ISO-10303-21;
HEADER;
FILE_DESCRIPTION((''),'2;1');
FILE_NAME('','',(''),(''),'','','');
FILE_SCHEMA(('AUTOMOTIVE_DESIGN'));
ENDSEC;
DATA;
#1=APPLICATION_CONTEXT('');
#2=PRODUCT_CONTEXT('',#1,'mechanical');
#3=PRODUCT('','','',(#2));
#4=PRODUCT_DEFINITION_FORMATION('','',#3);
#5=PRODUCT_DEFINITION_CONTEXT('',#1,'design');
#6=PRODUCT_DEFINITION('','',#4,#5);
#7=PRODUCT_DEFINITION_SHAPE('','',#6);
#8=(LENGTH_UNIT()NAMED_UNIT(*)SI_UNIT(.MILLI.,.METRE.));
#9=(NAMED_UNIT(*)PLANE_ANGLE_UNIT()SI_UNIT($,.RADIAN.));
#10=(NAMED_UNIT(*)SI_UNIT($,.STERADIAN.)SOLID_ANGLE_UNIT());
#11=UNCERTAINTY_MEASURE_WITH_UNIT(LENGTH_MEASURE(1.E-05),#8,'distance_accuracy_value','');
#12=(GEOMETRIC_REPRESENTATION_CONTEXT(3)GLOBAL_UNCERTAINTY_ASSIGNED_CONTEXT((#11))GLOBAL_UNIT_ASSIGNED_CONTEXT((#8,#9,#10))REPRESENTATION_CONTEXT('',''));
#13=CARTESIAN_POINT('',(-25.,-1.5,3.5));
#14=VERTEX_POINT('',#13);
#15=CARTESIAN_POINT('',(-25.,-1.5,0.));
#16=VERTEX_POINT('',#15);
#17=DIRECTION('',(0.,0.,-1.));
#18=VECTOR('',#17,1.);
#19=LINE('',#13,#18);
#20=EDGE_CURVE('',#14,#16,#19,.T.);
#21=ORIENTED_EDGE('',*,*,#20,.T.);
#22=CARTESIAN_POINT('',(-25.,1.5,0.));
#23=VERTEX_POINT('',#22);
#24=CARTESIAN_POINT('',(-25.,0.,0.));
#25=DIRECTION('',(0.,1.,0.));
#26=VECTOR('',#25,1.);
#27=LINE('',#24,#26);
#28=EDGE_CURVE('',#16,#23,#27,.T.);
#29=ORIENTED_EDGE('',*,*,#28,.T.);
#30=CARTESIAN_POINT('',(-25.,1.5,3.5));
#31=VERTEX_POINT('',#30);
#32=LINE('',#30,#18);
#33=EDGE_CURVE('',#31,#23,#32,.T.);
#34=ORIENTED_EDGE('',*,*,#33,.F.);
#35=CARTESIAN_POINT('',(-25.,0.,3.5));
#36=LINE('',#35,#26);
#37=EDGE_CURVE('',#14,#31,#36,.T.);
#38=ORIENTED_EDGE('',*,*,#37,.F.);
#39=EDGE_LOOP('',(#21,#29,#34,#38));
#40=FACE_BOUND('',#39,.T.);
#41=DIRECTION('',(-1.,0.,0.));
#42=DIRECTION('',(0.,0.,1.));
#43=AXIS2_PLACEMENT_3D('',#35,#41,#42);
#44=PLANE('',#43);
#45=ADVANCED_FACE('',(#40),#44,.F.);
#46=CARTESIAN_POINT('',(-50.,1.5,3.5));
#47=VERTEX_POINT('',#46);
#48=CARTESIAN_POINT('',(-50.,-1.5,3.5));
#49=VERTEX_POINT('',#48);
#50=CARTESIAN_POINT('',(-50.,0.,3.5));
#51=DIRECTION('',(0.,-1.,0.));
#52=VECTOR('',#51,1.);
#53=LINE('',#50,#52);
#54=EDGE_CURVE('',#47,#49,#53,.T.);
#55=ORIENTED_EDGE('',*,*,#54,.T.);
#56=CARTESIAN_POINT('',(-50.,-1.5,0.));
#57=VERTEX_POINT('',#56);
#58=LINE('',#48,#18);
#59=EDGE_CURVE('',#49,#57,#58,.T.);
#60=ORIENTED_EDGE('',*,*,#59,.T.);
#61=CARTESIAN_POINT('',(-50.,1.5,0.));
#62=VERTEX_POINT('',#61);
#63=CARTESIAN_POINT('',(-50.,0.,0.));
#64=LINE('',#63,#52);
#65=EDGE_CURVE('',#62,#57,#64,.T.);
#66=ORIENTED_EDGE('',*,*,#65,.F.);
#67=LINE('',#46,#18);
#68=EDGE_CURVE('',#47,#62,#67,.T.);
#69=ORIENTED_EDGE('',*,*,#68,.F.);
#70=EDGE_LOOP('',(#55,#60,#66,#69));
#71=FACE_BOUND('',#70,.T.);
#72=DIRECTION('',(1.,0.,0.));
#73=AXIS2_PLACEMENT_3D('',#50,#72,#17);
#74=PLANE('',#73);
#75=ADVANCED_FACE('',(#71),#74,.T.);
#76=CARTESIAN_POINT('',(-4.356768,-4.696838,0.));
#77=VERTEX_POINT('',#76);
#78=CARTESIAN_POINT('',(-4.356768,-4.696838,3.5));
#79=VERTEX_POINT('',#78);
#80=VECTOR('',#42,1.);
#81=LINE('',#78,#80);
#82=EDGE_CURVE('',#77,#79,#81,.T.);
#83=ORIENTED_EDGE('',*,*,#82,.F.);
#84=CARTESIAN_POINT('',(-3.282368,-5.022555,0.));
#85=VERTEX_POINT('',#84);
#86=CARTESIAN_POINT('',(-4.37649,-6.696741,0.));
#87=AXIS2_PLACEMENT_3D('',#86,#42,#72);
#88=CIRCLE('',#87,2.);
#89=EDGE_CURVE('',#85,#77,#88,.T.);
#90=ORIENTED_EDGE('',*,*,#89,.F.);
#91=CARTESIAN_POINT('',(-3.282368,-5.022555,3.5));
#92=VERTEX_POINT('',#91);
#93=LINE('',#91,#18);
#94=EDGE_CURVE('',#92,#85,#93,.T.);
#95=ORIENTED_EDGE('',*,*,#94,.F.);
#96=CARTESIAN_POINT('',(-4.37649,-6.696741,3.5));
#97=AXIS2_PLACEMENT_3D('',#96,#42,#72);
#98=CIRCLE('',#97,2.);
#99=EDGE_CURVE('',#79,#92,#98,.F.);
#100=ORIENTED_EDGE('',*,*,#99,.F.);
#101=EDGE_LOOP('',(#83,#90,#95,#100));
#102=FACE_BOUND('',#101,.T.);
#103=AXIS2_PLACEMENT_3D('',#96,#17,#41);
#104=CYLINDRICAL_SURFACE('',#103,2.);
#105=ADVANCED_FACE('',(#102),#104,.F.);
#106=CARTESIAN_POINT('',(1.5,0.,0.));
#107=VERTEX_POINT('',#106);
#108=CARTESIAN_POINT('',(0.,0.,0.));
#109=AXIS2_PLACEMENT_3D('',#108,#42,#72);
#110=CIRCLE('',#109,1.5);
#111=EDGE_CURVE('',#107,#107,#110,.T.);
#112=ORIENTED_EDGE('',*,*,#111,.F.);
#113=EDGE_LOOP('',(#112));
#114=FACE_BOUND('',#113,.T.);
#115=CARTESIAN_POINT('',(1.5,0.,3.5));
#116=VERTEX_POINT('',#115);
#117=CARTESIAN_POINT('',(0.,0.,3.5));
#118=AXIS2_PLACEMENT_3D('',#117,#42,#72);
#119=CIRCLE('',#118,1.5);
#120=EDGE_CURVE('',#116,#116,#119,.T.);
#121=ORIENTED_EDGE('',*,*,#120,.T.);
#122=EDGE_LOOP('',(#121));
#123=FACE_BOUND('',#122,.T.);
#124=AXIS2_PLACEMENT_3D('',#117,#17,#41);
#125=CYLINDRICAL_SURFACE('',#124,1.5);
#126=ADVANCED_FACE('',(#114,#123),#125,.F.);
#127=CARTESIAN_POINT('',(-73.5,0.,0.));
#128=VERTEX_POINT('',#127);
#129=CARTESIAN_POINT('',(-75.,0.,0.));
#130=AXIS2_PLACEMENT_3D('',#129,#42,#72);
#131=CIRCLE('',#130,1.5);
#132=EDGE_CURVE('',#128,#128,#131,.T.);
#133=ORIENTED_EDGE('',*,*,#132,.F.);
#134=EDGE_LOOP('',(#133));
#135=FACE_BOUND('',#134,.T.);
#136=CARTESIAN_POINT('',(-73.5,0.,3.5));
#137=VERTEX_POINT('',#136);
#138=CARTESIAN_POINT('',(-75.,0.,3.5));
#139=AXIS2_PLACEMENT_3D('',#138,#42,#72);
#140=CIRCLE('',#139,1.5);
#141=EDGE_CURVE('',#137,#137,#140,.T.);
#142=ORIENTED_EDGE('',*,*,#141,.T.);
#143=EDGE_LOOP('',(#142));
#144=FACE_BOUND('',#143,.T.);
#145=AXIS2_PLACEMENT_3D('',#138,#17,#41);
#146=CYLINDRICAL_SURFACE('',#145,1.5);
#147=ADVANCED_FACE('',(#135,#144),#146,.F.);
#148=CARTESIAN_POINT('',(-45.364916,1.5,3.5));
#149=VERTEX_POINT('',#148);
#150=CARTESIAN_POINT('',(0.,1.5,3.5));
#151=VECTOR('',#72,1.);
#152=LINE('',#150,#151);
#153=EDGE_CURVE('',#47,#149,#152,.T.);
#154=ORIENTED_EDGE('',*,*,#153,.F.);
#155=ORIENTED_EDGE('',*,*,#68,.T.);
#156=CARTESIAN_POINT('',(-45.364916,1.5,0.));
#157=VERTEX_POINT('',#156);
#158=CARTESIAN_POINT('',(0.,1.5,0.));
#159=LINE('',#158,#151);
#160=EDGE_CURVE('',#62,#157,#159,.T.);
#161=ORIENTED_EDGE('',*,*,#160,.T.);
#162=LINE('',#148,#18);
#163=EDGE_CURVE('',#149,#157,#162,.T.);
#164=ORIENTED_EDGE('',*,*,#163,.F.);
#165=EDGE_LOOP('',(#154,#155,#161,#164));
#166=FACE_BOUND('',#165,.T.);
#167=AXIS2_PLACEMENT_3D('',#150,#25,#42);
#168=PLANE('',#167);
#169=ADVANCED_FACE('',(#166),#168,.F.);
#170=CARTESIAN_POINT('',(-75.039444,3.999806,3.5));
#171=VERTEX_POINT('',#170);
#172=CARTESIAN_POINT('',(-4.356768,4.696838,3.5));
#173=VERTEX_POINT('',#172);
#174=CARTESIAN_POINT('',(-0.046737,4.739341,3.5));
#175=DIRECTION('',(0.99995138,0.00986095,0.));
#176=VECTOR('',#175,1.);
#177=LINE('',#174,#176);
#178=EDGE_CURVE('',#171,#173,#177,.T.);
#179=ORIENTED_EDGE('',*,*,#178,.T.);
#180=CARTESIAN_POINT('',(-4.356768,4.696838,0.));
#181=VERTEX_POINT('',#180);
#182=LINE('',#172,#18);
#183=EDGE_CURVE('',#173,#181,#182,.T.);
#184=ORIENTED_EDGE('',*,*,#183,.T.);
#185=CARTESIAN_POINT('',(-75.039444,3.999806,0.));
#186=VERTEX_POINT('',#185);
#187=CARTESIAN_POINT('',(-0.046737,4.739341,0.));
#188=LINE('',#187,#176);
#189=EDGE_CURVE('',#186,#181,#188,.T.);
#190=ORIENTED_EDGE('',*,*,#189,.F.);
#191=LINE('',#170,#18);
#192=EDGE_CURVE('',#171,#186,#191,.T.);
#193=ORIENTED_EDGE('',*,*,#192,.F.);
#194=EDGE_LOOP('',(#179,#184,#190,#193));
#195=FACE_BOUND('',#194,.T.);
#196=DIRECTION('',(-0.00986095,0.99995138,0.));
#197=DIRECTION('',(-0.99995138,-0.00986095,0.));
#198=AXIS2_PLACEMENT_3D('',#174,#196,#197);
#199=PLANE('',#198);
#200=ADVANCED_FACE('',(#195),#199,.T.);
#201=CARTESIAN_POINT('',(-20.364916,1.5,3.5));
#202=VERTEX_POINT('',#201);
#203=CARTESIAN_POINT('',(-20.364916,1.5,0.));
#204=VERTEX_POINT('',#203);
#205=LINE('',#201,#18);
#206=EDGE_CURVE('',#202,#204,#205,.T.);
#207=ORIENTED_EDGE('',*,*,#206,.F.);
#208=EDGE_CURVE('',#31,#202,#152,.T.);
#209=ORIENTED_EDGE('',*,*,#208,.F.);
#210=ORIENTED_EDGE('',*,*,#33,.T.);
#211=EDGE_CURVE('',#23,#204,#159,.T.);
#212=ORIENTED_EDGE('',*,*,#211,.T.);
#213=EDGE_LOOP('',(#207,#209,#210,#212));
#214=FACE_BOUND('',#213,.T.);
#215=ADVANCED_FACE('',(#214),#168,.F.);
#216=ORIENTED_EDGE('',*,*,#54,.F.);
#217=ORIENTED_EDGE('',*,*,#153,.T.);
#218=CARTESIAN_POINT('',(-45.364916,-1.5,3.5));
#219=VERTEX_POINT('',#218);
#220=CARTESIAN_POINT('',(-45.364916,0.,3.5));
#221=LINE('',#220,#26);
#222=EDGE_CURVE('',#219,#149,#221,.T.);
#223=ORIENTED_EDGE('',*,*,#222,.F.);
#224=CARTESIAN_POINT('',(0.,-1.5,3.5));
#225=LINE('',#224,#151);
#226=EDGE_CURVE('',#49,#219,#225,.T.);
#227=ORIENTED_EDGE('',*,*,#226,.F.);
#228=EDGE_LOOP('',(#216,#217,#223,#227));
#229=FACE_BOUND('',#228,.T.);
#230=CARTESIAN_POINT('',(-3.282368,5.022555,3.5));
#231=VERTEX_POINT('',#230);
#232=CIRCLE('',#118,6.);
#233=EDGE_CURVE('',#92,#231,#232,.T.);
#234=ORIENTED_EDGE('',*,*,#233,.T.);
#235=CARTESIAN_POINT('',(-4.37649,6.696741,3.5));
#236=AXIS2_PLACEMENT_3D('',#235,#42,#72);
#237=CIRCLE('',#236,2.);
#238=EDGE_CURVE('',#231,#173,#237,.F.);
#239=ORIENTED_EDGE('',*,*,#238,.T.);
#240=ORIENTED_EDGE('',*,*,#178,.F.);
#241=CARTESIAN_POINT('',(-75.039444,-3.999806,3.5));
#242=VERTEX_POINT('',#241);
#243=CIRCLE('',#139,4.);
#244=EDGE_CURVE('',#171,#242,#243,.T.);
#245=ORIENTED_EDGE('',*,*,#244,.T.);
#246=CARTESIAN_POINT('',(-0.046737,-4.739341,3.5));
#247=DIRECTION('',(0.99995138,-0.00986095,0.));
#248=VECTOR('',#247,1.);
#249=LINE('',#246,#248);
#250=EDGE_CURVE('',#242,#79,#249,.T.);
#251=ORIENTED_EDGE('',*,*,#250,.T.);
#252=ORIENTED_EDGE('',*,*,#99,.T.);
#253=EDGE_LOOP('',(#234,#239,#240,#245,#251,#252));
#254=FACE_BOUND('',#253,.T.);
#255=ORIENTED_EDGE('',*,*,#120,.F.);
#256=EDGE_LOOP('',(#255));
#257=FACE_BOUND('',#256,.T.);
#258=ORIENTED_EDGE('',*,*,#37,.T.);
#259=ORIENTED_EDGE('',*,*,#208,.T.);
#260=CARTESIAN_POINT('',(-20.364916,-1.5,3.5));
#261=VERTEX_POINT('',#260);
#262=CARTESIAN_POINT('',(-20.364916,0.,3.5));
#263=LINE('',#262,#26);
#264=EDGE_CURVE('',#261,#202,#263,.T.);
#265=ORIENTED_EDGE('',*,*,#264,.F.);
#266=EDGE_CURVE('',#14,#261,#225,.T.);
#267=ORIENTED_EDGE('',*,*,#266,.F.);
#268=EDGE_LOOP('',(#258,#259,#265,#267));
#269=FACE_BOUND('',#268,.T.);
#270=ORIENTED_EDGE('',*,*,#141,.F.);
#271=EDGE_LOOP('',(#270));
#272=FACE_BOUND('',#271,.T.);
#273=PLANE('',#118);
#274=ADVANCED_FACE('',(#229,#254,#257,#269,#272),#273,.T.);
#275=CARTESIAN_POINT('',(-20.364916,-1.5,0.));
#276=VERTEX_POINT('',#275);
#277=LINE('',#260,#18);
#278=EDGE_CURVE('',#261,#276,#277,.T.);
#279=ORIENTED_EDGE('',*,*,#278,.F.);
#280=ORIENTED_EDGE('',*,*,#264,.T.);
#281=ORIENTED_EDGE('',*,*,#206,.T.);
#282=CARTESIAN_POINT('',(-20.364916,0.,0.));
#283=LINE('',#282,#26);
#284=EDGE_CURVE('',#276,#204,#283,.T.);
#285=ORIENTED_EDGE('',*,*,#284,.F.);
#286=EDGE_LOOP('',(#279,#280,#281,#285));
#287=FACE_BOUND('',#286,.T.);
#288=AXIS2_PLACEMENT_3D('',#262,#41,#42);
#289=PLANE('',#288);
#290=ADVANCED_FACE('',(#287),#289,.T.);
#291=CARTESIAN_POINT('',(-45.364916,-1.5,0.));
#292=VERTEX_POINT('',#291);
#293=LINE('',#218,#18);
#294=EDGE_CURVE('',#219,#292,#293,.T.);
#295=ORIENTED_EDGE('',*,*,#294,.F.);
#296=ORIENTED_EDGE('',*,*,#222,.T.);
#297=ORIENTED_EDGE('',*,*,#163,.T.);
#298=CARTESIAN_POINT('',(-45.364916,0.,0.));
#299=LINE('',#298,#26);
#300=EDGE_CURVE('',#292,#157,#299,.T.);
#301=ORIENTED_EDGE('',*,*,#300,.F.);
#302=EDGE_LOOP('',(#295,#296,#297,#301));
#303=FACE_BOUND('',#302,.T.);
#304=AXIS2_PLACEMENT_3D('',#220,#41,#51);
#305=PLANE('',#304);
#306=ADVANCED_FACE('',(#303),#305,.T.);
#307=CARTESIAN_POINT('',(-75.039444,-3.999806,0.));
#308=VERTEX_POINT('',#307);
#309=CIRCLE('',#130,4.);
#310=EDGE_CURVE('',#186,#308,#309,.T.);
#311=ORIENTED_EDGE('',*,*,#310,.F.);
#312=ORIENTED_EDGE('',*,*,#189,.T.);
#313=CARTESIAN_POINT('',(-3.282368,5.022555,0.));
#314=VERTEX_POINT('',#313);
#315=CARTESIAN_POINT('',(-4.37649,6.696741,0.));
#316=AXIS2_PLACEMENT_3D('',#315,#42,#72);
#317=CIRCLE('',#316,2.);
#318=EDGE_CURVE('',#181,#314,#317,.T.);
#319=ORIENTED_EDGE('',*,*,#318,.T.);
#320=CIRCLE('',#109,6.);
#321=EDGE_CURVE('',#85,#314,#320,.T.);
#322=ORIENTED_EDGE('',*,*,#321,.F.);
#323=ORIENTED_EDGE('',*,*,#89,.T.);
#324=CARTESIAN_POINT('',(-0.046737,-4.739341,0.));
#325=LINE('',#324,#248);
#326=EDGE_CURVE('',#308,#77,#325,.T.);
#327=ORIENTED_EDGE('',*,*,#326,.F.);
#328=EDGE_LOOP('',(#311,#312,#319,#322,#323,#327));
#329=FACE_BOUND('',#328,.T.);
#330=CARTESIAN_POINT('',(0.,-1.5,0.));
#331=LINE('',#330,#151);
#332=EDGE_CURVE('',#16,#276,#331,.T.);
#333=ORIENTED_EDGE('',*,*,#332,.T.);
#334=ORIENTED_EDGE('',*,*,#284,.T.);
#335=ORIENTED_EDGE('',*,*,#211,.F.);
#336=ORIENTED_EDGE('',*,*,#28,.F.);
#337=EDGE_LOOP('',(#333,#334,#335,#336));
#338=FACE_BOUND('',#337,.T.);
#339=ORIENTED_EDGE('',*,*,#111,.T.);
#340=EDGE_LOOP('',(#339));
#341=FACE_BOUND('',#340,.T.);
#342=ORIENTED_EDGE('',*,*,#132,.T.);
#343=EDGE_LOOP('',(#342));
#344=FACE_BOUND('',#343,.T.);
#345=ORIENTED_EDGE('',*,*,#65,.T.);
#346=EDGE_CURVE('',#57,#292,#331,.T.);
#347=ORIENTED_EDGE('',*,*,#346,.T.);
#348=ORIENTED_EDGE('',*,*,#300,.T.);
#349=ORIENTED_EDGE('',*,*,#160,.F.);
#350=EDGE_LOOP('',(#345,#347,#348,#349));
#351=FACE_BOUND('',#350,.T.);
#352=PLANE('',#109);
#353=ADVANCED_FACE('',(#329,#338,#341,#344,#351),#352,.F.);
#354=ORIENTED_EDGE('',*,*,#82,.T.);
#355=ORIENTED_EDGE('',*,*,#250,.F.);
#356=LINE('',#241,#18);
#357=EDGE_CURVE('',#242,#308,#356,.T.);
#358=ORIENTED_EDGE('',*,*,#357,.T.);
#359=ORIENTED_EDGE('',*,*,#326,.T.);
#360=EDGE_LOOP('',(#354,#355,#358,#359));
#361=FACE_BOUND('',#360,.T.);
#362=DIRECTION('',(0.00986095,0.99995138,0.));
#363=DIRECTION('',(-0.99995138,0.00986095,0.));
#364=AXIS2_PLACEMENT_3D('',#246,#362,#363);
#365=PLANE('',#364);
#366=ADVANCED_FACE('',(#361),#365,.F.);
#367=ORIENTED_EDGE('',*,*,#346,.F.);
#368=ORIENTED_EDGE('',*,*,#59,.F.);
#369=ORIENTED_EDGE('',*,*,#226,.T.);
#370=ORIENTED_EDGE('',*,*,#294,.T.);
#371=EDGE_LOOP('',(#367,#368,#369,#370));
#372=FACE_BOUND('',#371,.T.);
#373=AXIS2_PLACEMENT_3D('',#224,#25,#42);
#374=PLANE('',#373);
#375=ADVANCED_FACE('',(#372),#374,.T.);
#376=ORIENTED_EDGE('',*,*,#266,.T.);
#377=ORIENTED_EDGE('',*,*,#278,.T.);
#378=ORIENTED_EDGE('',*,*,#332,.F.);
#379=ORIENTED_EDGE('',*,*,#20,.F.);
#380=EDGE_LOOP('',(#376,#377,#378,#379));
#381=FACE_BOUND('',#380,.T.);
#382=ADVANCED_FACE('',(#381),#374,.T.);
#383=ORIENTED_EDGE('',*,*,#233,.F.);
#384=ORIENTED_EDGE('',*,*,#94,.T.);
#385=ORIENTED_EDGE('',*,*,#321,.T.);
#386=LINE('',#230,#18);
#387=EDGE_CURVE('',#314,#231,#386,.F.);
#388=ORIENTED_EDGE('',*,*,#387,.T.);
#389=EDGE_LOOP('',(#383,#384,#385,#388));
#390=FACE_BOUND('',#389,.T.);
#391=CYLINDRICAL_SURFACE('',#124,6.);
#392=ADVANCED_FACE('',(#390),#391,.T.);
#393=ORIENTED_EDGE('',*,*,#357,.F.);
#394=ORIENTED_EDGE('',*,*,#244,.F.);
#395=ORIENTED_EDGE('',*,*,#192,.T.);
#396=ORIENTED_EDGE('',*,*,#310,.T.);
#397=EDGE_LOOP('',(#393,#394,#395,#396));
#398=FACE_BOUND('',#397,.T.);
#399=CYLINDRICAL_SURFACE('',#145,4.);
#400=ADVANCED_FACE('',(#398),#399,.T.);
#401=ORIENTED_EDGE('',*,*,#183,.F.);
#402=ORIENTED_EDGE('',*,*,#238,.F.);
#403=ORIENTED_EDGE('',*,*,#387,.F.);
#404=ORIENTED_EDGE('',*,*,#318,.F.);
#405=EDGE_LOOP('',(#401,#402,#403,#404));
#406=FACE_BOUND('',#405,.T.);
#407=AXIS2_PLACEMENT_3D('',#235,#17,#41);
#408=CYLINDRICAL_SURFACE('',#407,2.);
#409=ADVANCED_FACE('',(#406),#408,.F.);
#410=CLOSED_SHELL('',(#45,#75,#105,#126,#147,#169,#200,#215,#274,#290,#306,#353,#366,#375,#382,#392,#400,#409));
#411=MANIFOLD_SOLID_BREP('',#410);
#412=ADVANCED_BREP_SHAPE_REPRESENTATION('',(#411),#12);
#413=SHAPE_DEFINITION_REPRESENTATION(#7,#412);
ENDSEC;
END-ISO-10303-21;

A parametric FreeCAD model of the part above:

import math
import FreeCAD as App
import Part
import Sketcher

V = App.Vector


def edges_at(feature, points):
    """Names of the edges that pass closest to the given points."""
    edges = feature.Shape.Edges
    near = lambda p: min(range(len(edges)), key=lambda i: edges[i].distToShape(Part.Vertex(*p))[0])
    return sorted({f"Edge{near(p) + 1}" for p in points})


def add_polygon(sketch, points):
    """Adds a closed chain of lines whose ends are joined by coincident constraints."""
    first, n = sketch.GeometryCount, len(points)
    for a, b in zip(points, points[1:] + points[:1]):
        sketch.addGeometry(Part.LineSegment(App.Vector(*a, 0), App.Vector(*b, 0)), False)
    for i in range(n):
        sketch.addConstraint(Sketcher.Constraint("Coincident", first + i, 2, first + (i + 1) % n, 1))

doc = App.newDocument("Part")
body = doc.addObject("PartDesign::Body", "Body")

# Sketch on XY plane
sketch1 = body.newObject("Sketcher::SketchObject", "Sketch")
sketch1.AttachmentSupport = (doc.getObject("XY_Plane"), [""])
sketch1.MapMode = "FlatFace"
sketch1.addGeometry(Part.LineSegment(V(-3.725751, 4.703061, 0), V(-75.039444, 3.999806, 0)), False)  # 0
sketch1.addGeometry(Part.ArcOfCircle(Part.Circle(V(-75, 0, 0), V(0, 0, 1), 4), math.radians(90.565), math.radians(269.435)), False)  # 1
sketch1.addGeometry(Part.LineSegment(V(-75.039444, -3.999806, 0), V(-3.725751, -4.703061, 0)), False)  # 2
sketch1.addGeometry(Part.ArcOfCircle(Part.Circle(V(0, 0, 0), V(0, 0, 1), 6), math.radians(-128.386165), math.radians(128.386165)), False)  # 3
sketch1.addGeometry(Part.Circle(V(0, 0, 0), V(0, 0, 1), 1.5), False)  # 4
add_polygon(sketch1, [(-25, -1.5), (-25, 1.5), (-20.364916, 1.5), (-20.364916, -1.5)])  # lines 5-8
add_polygon(sketch1, [(-50, -1.5), (-50, 1.5), (-45.364916, 1.5), (-45.364916, -1.5)])  # lines 9-12
sketch1.addGeometry(Part.Circle(V(-75, 0, 0), V(0, 0, 1), 1.5), False)  # 13
sketch1.addConstraint(Sketcher.Constraint("Tangent", 0, 2, 1, 1))
sketch1.addConstraint(Sketcher.Constraint("Tangent", 1, 2, 2, 1))
sketch1.addConstraint(Sketcher.Constraint("Coincident", 2, 2, 3, 1))
sketch1.addConstraint(Sketcher.Constraint("Coincident", 3, 2, 0, 1))
sketch1.addConstraint(Sketcher.Constraint("Vertical", 5))
sketch1.addConstraint(Sketcher.Constraint("Horizontal", 6))
sketch1.addConstraint(Sketcher.Constraint("Vertical", 7))
sketch1.addConstraint(Sketcher.Constraint("Horizontal", 8))
sketch1.addConstraint(Sketcher.Constraint("Vertical", 9))
sketch1.addConstraint(Sketcher.Constraint("Horizontal", 10))
sketch1.addConstraint(Sketcher.Constraint("Vertical", 11))
sketch1.addConstraint(Sketcher.Constraint("Horizontal", 12))
sketch1.addConstraint(Sketcher.Constraint("Coincident", 3, 3, -1, 1))
sketch1.addConstraint(Sketcher.Constraint("Coincident", 4, 3, -1, 1))
sketch1.addConstraint(Sketcher.Constraint("Coincident", 13, 3, 1, 3))
sketch1.addConstraint(Sketcher.Constraint("Equal", 4, 13))
sketch1.addConstraint(Sketcher.Constraint("Symmetric", 0, 2, 1, 2, -1))
sketch1.addConstraint(Sketcher.Constraint("Horizontal", 6, 2, 9, 2))
sketch1.addConstraint(Sketcher.Constraint("Horizontal", 8, 2, 11, 2))
sketch1.addConstraint(Sketcher.Constraint("Equal", 8, 10))
sketch1.addConstraint(Sketcher.Constraint("Diameter", 4, 3.0))
sketch1.addConstraint(Sketcher.Constraint("Radius", 1, 4.0))
sketch1.addConstraint(Sketcher.Constraint("Radius", 3, 6.0))
sketch1.addConstraint(Sketcher.Constraint("DistanceY", 5, 1, 5, 2, 3.0))
sketch1.addConstraint(Sketcher.Constraint("DistanceX", 1, 3, -1, 1, 75.0))
sketch1.addConstraint(Sketcher.Constraint("DistanceX", 5, 2, -1, 1, 25.0))
sketch1.addConstraint(Sketcher.Constraint("DistanceX", 9, 2, -1, 1, 50.0))
sketch1.addConstraint(Sketcher.Constraint("DistanceY", -1, 1, 5, 2, 1.5))
sketch1.addConstraint(Sketcher.Constraint("Distance", 0, 71.31716))
sketch1.addConstraint(Sketcher.Constraint("DistanceX", 6, 1, 6, 2, 4.635084))
pad1 = body.newObject("PartDesign::Pad", "Pad")
pad1.Profile = sketch1
pad1.Length = 3.5
doc.recompute()

fillet = body.newObject("PartDesign::Fillet", "Fillet")
fillet.Base = (pad1, edges_at(pad1, [(-3.726, 4.703, 1.75), (-3.726, -4.703, 1.75)]))
fillet.Radius = 2

doc.recompute()
